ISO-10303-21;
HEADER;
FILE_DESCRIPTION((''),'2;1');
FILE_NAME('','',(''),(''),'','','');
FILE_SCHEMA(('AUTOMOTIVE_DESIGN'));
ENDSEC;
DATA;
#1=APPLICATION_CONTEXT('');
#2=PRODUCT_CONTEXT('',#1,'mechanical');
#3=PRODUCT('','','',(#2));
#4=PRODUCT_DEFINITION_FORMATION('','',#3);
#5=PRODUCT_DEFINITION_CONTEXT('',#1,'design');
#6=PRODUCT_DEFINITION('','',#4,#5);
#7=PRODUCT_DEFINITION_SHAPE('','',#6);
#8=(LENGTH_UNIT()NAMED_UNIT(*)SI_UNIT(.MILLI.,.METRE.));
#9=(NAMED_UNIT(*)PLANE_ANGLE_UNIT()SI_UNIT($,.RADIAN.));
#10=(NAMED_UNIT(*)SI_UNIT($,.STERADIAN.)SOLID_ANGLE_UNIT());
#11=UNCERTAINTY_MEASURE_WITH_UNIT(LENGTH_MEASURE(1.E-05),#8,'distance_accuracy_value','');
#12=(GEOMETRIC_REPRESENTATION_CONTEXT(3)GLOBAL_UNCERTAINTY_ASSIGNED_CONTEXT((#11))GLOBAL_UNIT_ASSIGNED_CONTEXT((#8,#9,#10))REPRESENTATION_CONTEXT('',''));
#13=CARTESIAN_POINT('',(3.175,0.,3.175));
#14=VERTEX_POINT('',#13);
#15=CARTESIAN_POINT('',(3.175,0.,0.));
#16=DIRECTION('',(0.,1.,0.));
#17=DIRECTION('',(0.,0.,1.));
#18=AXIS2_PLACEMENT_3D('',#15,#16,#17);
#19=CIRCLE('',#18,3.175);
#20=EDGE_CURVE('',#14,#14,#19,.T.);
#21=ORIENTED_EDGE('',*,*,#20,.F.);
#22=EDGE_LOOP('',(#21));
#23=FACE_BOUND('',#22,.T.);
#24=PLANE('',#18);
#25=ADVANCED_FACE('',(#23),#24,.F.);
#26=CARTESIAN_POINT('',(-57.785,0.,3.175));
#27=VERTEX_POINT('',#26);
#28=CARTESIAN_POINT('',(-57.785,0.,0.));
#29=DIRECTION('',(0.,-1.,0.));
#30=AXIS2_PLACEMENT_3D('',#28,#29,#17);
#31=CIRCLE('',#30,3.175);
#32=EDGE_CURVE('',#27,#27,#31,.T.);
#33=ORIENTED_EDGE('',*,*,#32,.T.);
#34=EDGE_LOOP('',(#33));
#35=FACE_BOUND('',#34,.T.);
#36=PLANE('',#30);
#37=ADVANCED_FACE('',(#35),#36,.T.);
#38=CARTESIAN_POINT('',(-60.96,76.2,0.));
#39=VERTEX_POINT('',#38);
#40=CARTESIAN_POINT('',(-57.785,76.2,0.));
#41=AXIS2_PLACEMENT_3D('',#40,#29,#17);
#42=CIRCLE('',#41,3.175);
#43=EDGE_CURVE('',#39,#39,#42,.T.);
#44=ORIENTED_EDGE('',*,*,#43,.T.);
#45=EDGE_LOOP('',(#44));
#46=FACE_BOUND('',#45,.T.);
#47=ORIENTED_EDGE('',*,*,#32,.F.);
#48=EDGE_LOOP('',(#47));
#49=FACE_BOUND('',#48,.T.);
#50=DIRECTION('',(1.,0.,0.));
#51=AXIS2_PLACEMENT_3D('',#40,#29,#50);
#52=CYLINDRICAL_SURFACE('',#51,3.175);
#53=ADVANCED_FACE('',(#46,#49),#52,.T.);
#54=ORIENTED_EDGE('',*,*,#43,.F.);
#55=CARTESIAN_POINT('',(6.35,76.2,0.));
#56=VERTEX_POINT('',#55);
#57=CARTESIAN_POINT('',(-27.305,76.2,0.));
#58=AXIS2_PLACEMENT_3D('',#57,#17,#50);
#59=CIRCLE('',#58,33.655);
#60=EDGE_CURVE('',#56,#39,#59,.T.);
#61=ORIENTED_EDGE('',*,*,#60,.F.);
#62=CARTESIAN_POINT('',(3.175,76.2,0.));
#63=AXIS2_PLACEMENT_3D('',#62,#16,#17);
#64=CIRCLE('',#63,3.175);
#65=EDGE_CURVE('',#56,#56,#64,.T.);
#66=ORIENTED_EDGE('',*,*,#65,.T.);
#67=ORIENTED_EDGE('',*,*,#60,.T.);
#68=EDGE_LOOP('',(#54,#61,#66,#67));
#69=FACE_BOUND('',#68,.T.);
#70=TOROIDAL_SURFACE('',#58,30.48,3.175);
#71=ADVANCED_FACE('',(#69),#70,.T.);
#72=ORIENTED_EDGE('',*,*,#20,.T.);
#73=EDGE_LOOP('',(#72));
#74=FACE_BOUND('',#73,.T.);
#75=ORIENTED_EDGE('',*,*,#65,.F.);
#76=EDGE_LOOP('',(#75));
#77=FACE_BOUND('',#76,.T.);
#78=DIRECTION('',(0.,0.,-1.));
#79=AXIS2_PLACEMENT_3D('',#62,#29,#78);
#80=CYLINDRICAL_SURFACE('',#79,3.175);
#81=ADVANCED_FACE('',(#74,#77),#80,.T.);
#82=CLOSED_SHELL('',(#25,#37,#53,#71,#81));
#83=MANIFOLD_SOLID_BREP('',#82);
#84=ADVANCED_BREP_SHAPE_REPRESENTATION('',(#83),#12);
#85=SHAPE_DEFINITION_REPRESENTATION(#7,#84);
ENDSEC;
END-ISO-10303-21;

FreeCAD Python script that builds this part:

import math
import FreeCAD as App
import Part
import Sketcher
Q = App.Units.Quantity

doc = App.newDocument("Part")
body = doc.addObject("PartDesign::Body", "Body")

sketch1 = body.newObject("Sketcher::SketchObject", "Sketch")
sketch1.AttachmentSupport = (doc.getObject("XZ_Plane"), [""])
sketch1.MapMode = "FlatFace"
sketch1.addGeometry(Part.Circle(App.Vector(3.2, 0, 0), App.Vector(0, 0, 1), 3.2), False)
sketch1.addConstraint(Sketcher.Constraint("PointOnObject", 0, 3, -1))
sketch1.addConstraint(Sketcher.Constraint("Diameter", 0, Q("0.25 in")))
sketch1.addConstraint(Sketcher.Constraint("DistanceX", -1, 1, 0, 3, Q("0.125 in")))

sketch2 = body.newObject("Sketcher::SketchObject", "Sketch001")
sketch2.AttachmentSupport = (doc.getObject("XY_Plane"), [""])
sketch2.MapMode = "FlatFace"
sketch2.addGeometry(Part.LineSegment(App.Vector(0, 0, 0), App.Vector(0, 76, 0)), False)
sketch2.addGeometry(Part.ArcOfCircle(Part.Circle(App.Vector(-27, 76, 0), App.Vector(0, 0, 1), 27), math.radians(0), math.radians(180)), False)
sketch2.addGeometry(Part.LineSegment(App.Vector(-55, 76, 0), App.Vector(-55, 0, 0)), False)
sketch2.addConstraint(Sketcher.Constraint("Tangent", 0, 2, 1, 1))
sketch2.addConstraint(Sketcher.Constraint("Tangent", 1, 2, 2, 1))
sketch2.addConstraint(Sketcher.Constraint("Vertical", 0))
sketch2.addConstraint(Sketcher.Constraint("Vertical", 2))
sketch2.addConstraint(Sketcher.Constraint("Coincident", 0, 1, -1, 1))
sketch2.addConstraint(Sketcher.Constraint("PointOnObject", 2, 2, -1))
sketch2.addConstraint(Sketcher.Constraint("DistanceY", 0, 1, 0, 2, Q("3 in")))
sketch2.addConstraint(Sketcher.Constraint("Radius", 1, Q("1.075 in")))
doc.recompute()

additivepipe = body.newObject("PartDesign::AdditivePipe", "AdditivePipe")
additivepipe.Profile = sketch1
additivepipe.Spine = (sketch2, ["Edge1", "Edge2", "Edge3"])

doc.recompute()
